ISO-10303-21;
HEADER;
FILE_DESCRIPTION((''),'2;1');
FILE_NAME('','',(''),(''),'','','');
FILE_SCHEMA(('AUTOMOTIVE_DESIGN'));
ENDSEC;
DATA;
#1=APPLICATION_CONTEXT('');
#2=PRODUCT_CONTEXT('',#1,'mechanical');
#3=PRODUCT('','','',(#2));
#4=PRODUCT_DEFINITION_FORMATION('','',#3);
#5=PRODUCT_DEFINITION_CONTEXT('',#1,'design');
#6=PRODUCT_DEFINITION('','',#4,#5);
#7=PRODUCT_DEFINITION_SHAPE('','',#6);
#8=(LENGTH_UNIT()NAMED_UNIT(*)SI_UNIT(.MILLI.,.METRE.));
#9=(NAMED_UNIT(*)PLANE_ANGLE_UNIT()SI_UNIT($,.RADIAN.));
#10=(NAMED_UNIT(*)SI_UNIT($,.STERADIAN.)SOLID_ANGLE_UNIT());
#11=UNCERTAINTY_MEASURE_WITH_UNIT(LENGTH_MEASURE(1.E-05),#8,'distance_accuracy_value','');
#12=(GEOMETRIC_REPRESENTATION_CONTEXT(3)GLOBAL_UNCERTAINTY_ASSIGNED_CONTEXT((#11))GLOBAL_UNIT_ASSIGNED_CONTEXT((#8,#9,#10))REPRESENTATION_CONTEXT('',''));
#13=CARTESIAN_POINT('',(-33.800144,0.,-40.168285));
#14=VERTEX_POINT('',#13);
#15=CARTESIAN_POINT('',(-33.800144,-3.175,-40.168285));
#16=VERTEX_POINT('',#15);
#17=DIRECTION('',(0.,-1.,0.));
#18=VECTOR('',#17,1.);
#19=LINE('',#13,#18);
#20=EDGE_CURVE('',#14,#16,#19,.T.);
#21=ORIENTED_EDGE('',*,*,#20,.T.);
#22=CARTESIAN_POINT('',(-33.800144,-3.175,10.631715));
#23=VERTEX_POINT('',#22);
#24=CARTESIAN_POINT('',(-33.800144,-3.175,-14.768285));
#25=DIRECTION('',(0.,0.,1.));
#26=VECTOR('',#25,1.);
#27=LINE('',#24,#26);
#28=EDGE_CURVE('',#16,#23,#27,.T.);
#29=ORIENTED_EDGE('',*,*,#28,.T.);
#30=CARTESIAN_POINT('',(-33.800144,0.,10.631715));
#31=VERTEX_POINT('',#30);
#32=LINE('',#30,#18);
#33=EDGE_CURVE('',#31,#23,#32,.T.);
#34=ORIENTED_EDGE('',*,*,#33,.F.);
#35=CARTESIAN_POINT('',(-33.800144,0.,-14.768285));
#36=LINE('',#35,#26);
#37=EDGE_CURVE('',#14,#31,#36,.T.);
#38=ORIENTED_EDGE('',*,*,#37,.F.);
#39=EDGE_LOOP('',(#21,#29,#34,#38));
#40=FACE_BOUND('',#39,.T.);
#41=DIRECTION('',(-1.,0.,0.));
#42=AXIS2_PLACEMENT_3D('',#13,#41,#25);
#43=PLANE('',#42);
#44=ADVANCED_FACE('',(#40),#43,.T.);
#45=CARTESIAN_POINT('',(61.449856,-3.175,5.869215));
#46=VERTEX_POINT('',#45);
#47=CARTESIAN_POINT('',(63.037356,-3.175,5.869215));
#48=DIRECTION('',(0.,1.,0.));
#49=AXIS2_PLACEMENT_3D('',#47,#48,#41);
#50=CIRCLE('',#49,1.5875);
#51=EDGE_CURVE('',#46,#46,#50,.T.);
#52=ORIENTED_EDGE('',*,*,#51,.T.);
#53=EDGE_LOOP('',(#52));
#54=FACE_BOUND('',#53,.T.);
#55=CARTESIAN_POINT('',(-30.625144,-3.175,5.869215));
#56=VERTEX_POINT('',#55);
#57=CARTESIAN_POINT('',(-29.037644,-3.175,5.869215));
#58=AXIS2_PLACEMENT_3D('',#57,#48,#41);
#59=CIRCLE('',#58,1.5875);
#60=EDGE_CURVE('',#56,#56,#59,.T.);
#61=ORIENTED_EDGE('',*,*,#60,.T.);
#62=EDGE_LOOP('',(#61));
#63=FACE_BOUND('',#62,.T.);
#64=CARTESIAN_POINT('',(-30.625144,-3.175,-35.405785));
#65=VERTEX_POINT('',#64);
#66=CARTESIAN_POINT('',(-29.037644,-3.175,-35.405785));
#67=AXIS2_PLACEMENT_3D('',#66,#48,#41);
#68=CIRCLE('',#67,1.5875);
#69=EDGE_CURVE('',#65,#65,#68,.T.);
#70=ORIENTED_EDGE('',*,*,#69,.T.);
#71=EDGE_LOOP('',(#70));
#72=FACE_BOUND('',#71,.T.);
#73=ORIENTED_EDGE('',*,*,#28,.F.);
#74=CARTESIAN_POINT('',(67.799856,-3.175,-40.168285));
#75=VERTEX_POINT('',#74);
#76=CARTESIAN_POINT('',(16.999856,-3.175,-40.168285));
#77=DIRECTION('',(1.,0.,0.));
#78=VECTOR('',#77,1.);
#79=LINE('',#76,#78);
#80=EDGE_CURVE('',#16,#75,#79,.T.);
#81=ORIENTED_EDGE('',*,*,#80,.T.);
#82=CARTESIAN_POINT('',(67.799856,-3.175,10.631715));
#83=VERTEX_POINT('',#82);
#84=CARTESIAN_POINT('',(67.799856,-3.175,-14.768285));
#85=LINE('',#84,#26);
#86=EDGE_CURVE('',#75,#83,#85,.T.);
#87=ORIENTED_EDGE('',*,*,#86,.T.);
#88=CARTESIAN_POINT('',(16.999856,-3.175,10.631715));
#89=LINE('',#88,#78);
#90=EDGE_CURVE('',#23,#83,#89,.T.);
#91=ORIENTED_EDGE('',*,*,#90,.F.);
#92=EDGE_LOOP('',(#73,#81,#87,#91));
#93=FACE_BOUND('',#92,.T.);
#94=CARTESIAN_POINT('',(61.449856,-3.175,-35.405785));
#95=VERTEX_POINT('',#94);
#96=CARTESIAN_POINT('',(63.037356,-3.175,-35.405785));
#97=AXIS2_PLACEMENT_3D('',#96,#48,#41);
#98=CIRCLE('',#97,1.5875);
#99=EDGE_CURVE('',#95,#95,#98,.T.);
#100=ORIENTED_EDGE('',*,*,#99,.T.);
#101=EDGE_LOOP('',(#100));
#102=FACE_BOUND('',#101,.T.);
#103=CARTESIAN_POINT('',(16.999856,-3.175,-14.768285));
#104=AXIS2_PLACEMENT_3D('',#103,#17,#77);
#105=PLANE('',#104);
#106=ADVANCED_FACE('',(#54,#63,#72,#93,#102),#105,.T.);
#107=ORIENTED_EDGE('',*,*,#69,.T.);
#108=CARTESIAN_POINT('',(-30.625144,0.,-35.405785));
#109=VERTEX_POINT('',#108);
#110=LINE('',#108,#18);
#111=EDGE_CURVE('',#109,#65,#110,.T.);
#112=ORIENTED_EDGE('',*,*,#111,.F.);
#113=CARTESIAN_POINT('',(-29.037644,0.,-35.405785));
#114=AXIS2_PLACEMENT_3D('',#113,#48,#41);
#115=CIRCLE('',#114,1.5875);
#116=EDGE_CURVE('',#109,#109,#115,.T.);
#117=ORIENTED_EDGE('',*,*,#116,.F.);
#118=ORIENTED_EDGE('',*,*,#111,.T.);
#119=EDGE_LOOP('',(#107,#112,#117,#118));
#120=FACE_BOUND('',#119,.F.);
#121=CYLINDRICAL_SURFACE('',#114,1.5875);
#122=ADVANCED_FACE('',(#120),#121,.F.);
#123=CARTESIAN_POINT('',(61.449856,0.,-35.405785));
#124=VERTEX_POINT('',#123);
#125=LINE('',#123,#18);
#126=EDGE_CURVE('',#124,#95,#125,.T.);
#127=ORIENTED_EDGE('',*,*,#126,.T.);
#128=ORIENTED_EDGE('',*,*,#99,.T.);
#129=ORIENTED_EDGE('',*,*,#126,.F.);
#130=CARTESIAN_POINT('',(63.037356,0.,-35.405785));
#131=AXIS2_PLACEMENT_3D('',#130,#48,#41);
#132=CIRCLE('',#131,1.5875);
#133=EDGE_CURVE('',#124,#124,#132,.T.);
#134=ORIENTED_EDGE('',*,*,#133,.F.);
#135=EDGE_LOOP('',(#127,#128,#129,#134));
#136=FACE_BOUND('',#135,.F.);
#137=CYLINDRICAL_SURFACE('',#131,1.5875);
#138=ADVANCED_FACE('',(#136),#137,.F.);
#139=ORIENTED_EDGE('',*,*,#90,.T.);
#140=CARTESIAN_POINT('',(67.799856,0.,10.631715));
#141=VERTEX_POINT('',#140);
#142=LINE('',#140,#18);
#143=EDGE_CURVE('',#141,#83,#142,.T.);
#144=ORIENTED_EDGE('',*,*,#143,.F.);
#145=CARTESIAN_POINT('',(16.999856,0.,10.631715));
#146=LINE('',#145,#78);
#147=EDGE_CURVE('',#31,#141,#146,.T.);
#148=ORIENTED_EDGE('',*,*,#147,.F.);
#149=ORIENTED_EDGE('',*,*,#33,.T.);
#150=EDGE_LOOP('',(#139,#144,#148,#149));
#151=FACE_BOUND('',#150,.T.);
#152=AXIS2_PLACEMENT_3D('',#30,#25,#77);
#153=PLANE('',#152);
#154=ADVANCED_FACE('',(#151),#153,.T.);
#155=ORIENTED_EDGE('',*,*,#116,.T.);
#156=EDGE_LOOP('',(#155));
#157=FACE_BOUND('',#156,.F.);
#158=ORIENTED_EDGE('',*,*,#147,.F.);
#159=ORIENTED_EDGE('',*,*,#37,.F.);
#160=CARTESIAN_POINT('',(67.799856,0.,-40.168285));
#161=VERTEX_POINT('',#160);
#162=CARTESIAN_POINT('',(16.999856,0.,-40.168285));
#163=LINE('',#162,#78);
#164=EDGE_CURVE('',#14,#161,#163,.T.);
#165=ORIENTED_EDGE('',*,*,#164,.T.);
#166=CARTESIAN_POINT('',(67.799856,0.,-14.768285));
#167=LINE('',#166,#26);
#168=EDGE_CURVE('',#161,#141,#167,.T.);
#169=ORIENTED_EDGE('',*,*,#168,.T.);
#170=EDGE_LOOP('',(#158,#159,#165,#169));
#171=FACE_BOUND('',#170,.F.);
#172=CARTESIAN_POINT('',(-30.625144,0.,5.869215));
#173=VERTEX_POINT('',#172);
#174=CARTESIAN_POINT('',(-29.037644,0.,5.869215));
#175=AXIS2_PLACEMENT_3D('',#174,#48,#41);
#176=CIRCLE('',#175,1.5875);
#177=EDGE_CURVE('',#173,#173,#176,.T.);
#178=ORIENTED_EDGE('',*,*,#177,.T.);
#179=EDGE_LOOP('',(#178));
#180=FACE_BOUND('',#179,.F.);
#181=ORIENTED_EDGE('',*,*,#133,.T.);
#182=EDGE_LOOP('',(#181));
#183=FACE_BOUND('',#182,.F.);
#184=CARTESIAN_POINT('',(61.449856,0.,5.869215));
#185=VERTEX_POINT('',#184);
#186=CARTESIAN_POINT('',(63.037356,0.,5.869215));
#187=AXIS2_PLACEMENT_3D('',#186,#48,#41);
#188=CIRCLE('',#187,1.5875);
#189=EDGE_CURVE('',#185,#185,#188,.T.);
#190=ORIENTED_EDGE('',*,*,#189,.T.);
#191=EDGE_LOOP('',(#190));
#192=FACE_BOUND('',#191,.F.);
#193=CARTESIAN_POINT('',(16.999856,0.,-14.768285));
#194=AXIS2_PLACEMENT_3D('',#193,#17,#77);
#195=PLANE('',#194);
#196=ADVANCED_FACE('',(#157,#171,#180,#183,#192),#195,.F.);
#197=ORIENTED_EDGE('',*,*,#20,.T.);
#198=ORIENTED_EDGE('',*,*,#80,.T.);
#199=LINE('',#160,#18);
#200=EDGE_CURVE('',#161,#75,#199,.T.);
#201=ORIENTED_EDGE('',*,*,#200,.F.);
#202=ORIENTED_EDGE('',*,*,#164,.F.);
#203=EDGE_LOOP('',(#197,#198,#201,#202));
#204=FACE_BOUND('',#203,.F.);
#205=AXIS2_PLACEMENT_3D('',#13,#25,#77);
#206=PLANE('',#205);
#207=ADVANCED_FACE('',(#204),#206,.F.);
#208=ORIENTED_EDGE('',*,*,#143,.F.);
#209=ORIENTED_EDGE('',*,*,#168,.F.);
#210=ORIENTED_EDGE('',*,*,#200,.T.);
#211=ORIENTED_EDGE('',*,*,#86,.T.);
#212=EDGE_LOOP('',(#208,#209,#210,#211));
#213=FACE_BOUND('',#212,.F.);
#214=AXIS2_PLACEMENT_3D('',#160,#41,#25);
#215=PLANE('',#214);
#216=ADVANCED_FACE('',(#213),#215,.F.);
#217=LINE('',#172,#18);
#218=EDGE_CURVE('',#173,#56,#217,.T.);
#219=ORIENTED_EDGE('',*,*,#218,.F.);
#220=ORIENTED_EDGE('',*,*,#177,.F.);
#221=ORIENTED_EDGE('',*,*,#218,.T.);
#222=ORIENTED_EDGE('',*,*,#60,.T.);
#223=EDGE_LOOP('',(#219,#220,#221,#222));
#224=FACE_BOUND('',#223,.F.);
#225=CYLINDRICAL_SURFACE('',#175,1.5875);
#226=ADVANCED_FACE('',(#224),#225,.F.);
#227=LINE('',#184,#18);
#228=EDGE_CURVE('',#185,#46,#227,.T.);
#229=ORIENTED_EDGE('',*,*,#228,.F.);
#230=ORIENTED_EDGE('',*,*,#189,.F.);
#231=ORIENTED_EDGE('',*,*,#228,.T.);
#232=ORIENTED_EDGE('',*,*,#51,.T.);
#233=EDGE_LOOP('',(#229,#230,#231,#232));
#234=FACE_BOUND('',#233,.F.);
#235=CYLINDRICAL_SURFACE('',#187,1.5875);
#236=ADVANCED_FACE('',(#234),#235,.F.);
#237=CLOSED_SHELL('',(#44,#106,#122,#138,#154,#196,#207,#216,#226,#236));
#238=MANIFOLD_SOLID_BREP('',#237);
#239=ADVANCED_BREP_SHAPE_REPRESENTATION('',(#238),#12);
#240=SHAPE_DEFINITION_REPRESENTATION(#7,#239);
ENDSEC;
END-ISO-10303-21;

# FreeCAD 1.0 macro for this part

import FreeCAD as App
import Part
import Sketcher
from FreeCAD import Vector
Q = App.Units.Quantity

doc = App.newDocument("Part")
body = doc.addObject("PartDesign::Body", "Body")

# Sketch on XZ plane
sketch1 = body.newObject("Sketcher::SketchObject", "Sketch")
sketch1.AttachmentSupport = (doc.getObject("XZ_Plane"), [""])
sketch1.MapMode = "FlatFace"
sketch1.addGeometry(Part.LineSegment(Vector(-34, 11, 0), Vector(-34, -40, 0)), False)
sketch1.addGeometry(Part.LineSegment(Vector(-34, -40, 0), Vector(68, -40, 0)), False)
sketch1.addGeometry(Part.LineSegment(Vector(68, -40, 0), Vector(68, 11, 0)), False)
sketch1.addGeometry(Part.LineSegment(Vector(68, 11, 0), Vector(-34, 11, 0)), False)
sketch1.addConstraint(Sketcher.Constraint("Coincident", 0, 2, 1, 1))
sketch1.addConstraint(Sketcher.Constraint("Coincident", 1, 2, 2, 1))
sketch1.addConstraint(Sketcher.Constraint("Coincident", 2, 2, 3, 1))
sketch1.addConstraint(Sketcher.Constraint("Coincident", 3, 2, 0, 1))
sketch1.addConstraint(Sketcher.Constraint("Vertical", 0))
sketch1.addConstraint(Sketcher.Constraint("Horizontal", 1))
sketch1.addConstraint(Sketcher.Constraint("Vertical", 2))
sketch1.addConstraint(Sketcher.Constraint("Horizontal", 3))
sketch1.addConstraint(Sketcher.Constraint("DistanceX", 1, 1, 1, 2, Q("4 in")))
sketch1.addConstraint(Sketcher.Constraint("DistanceY", 0, 2, 0, 1, Q("2 in")))
sketch1.addConstraint(Sketcher.Constraint("DistanceX", 0, 2, -1, 1, 33.800144))
sketch1.addConstraint(Sketcher.Constraint("DistanceY", 0, 2, -1, 1, 40.168285))
pad1 = body.newObject("PartDesign::Pad", "Pad")
pad1.Profile = sketch1
pad1.Length = Q("0.125 in")

# Sketch on XZ plane
sketch2 = body.newObject("Sketcher::SketchObject", "Sketch001")
sketch2.AttachmentSupport = (doc.getObject("XZ_Plane"), [""])
sketch2.MapMode = "FlatFace"
sketch2.addGeometry(Part.Circle(Vector(63, 5.9, 0), Vector(0, 0, 1), 1.6), False)
sketch2.addGeometry(Part.Circle(Vector(63, -35.4, 0), Vector(0, 0, 1), 1.6), False)
sketch2.addGeometry(Part.Circle(Vector(-29, 5.9, 0), Vector(0, 0, 1), 1.6), False)
sketch2.addGeometry(Part.Circle(Vector(-29, -35.4, 0), Vector(0, 0, 1), 1.6), False)
sketch2.addConstraint(Sketcher.Constraint("Equal", 0, 1))
sketch2.addConstraint(Sketcher.Constraint("Equal", 1, 2))
sketch2.addConstraint(Sketcher.Constraint("Equal", 2, 3))
sketch2.addConstraint(Sketcher.Constraint("Horizontal", 0, 3, 2, 3))
sketch2.addConstraint(Sketcher.Constraint("Horizontal", 1, 3, 3, 3))
sketch2.addConstraint(Sketcher.Constraint("Vertical", 0, 3, 1, 3))
sketch2.addConstraint(Sketcher.Constraint("Vertical", 2, 3, 3, 3))
sketch2.addConstraint(Sketcher.Constraint("Diameter", 0, Q("0.125 in")))
sketch2.addConstraint(Sketcher.Constraint("DistanceY", 1, 3, 0, 3, Q("1.625 in")))
sketch2.addConstraint(Sketcher.Constraint("DistanceX", 2, 3, 0, 3, Q("3.625 in")))
sketch2.addConstraint(Sketcher.Constraint("DistanceX", -1, 1, 0, 3, 63.037356))
sketch2.addConstraint(Sketcher.Constraint("DistanceY", -1, 1, 0, 3, 5.869215))
pocket1 = body.newObject("PartDesign::Pocket", "Pocket")
pocket1.Profile = sketch2
pocket1.Length = Q("1 in")
pocket1.Reversed = True

# Sketch on XZ plane
sketch3 = body.newObject("Sketcher::SketchObject", "Sketch002")
sketch3.AttachmentSupport = (doc.getObject("XZ_Plane"), [""])
sketch3.MapMode = "FlatFace"
sketch3.AttachmentOffset = App.Placement(Vector(0, 0, 0.125 * 25.4), App.Rotation())
sketch3.addGeometry(Part.Circle(Vector(25.4, -20.2, 0), Vector(0, 0, 1), 3.2), False)
sketch3.addConstraint(Sketcher.Constraint("DistanceX", -1, 1, 0, 3, Q("1 in")))
sketch3.addConstraint(Sketcher.Constraint("Diameter", 0, 6.351136))
sketch3.addConstraint(Sketcher.Constraint("DistanceY", 0, 3, -1, 1, 20.161087))
pocket2 = body.newObject("PartDesign::Pocket", "Pocket001")
pocket2.Profile = sketch3
pocket2.Length = Q("1 in")
pocket2.Reversed = True

doc.recompute()
